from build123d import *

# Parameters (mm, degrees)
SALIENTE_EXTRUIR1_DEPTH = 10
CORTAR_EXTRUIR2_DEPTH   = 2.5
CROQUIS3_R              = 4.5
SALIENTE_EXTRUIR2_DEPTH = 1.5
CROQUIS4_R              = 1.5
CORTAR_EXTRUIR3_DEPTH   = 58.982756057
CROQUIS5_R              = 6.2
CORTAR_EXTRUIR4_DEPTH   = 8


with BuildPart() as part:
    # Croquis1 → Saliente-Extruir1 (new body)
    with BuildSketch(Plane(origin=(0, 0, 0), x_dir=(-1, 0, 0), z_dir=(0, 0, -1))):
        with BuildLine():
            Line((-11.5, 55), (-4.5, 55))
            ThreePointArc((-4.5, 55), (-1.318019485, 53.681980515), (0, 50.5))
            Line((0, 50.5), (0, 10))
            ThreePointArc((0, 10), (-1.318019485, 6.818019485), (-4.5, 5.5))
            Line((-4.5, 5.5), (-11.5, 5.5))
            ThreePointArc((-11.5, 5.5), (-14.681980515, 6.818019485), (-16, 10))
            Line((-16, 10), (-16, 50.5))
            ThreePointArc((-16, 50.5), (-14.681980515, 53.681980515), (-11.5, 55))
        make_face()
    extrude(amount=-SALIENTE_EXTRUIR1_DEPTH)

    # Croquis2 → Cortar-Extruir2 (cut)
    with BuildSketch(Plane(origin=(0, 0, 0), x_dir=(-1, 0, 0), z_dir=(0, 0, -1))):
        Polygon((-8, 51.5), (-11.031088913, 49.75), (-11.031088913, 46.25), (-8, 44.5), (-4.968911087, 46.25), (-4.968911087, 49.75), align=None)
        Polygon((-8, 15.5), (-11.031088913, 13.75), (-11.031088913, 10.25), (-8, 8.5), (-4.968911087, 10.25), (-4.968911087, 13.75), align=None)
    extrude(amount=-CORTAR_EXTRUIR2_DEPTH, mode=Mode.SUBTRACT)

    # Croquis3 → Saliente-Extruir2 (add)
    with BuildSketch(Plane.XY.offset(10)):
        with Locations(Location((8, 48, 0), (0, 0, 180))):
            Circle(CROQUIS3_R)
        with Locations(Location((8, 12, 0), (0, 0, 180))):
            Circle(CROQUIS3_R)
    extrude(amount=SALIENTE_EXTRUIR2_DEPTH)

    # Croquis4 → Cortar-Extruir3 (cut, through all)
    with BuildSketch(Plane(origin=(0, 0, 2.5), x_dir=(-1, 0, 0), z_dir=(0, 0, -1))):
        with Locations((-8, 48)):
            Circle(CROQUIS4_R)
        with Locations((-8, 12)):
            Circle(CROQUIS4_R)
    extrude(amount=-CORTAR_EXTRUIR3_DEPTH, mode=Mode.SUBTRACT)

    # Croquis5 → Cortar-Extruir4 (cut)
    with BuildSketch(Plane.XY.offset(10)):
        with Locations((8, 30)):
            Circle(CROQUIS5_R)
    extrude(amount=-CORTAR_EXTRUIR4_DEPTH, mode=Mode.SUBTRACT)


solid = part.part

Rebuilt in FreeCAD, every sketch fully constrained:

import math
import FreeCAD as App
import Part
import Sketcher
Q = App.Units.Quantity


def add_polygon(sketch, points):
    """Adds a closed chain of lines whose ends are joined by coincident constraints."""
    first, n = sketch.GeometryCount, len(points)
    for a, b in zip(points, points[1:] + points[:1]):
        sketch.addGeometry(Part.LineSegment(App.Vector(*a, 0), App.Vector(*b, 0)), False)
    for i in range(n):
        sketch.addConstraint(Sketcher.Constraint("Coincident", first + i, 2, first + (i + 1) % n, 1))

doc = App.newDocument("Part")
body = doc.addObject("PartDesign::Body", "Body")

sketch1 = body.newObject("Sketcher::SketchObject", "Sketch")
sketch1.AttachmentSupport = (doc.getObject("XY_Plane"), [""])
sketch1.MapMode = "FlatFace"
sketch1.addGeometry(Part.LineSegment(App.Vector(4.5, 55, 0), App.Vector(11.5, 55, 0)), False)
sketch1.addGeometry(Part.ArcOfCircle(Part.Circle(App.Vector(11.5, 50.5, 0), App.Vector(0, 0, 1), 4.5), math.radians(0), math.radians(90)), False)
sketch1.addGeometry(Part.LineSegment(App.Vector(16, 50.5, 0), App.Vector(16, 10, 0)), False)
sketch1.addGeometry(Part.ArcOfCircle(Part.Circle(App.Vector(11.5, 10, 0), App.Vector(0, 0, 1), 4.5), math.radians(-90), math.radians(0)), False)
sketch1.addGeometry(Part.LineSegment(App.Vector(11.5, 5.5, 0), App.Vector(4.5, 5.5, 0)), False)
sketch1.addGeometry(Part.ArcOfCircle(Part.Circle(App.Vector(4.5, 10, 0), App.Vector(0, 0, 1), 4.5), math.radians(-180), math.radians(-90)), False)
sketch1.addGeometry(Part.LineSegment(App.Vector(0, 10, 0), App.Vector(0, 50.5, 0)), False)
sketch1.addGeometry(Part.ArcOfCircle(Part.Circle(App.Vector(4.5, 50.5, 0), App.Vector(0, 0, 1), 4.5), math.radians(90), math.radians(180)), False)
sketch1.addConstraint(Sketcher.Constraint("Tangent", 0, 2, 1, 2))
sketch1.addConstraint(Sketcher.Constraint("Tangent", 1, 1, 2, 1))
sketch1.addConstraint(Sketcher.Constraint("Tangent", 2, 2, 3, 2))
sketch1.addConstraint(Sketcher.Constraint("Tangent", 3, 1, 4, 1))
sketch1.addConstraint(Sketcher.Constraint("Tangent", 4, 2, 5, 2))
sketch1.addConstraint(Sketcher.Constraint("Tangent", 5, 1, 6, 1))
sketch1.addConstraint(Sketcher.Constraint("Tangent", 6, 2, 7, 2))
sketch1.addConstraint(Sketcher.Constraint("Tangent", 7, 1, 0, 1))
sketch1.addConstraint(Sketcher.Constraint("Horizontal", 0))
sketch1.addConstraint(Sketcher.Constraint("Vertical", 2))
sketch1.addConstraint(Sketcher.Constraint("Horizontal", 4))
sketch1.addConstraint(Sketcher.Constraint("Vertical", 6))
sketch1.addConstraint(Sketcher.Constraint("Equal", 1, 3))
sketch1.addConstraint(Sketcher.Constraint("Equal", 3, 5))
sketch1.addConstraint(Sketcher.Constraint("Equal", 5, 7))
sketch1.addConstraint(Sketcher.Constraint("PointOnObject", 5, 1, -2))
sketch1.addConstraint(Sketcher.Constraint("Radius", 1, Q("4.5 mm")))
sketch1.addConstraint(Sketcher.Constraint("DistanceX", 0, 1, 0, 2, Q("7 mm")))
sketch1.addConstraint(Sketcher.Constraint("DistanceY", 2, 2, 2, 1, Q("40.5 mm")))
sketch1.addConstraint(Sketcher.Constraint("DistanceY", -1, 1, 3, 3, Q("10 mm")))
pad1 = body.newObject("PartDesign::Pad", "Pad")
pad1.Profile = sketch1
pad1.Length = 10

sketch2 = body.newObject("Sketcher::SketchObject", "Sketch001")
sketch2.AttachmentSupport = (doc.getObject("XY_Plane"), [""])
sketch2.MapMode = "FlatFace"
add_polygon(sketch2, [(8, 51.5), (11.031089, 49.75), (11.031089, 46.25), (8, 44.5), (4.968911, 46.25), (4.968911, 49.75)])
add_polygon(sketch2, [(8, 15.5), (11.031089, 13.75), (11.031089, 10.25), (8, 8.5), (4.968911, 10.25), (4.968911, 13.75)])
sketch2.addConstraint(Sketcher.Constraint("Vertical", 1))
sketch2.addConstraint(Sketcher.Constraint("Vertical", 4))
sketch2.addConstraint(Sketcher.Constraint("Vertical", 7))
sketch2.addConstraint(Sketcher.Constraint("Vertical", 10))
sketch2.addConstraint(Sketcher.Constraint("Parallel", 0, 3))
sketch2.addConstraint(Sketcher.Constraint("Parallel", 2, 5))
sketch2.addConstraint(Sketcher.Constraint("Parallel", 3, 6))
sketch2.addConstraint(Sketcher.Constraint("Parallel", 5, 8))
sketch2.addConstraint(Sketcher.Constraint("Parallel", 6, 9))
sketch2.addConstraint(Sketcher.Constraint("Parallel", 8, 11))
sketch2.addConstraint(Sketcher.Constraint("Horizontal", 1, 2, 3, 2))
sketch2.addConstraint(Sketcher.Constraint("Horizontal", 0, 2, 4, 2))
sketch2.addConstraint(Sketcher.Constraint("Horizontal", 7, 2, 9, 2))
sketch2.addConstraint(Sketcher.Constraint("Horizontal", 6, 2, 10, 2))
sketch2.addConstraint(Sketcher.Constraint("Vertical", 2, 2, 5, 2))
sketch2.addConstraint(Sketcher.Constraint("Vertical", 1, 2, 6, 2))
sketch2.addConstraint(Sketcher.Constraint("Vertical", 5, 2, 8, 2))
sketch2.addConstraint(Sketcher.Constraint("Equal", 4, 7))
sketch2.addConstraint(Sketcher.Constraint("Angle", 0, Q("-30 deg")))
sketch2.addConstraint(Sketcher.Constraint("DistanceY", 1, 2, 1, 1, Q("3.5 mm")))
sketch2.addConstraint(Sketcher.Constraint("DistanceX", -1, 1, 2, 2, Q("8 mm")))
sketch2.addConstraint(Sketcher.Constraint("DistanceY", 2, 2, 5, 2, Q("7 mm")))
sketch2.addConstraint(Sketcher.Constraint("DistanceY", 6, 2, 0, 2, Q("36 mm")))
sketch2.addConstraint(Sketcher.Constraint("DistanceY", -1, 1, 2, 2, Q("44.5 mm")))
pocket1 = body.newObject("PartDesign::Pocket", "Pocket")
pocket1.Profile = sketch2
pocket1.Length = 2.5
pocket1.Reversed = True

sketch3 = body.newObject("Sketcher::SketchObject", "Sketch002")
sketch3.AttachmentSupport = (doc.getObject("XY_Plane"), [""])
sketch3.MapMode = "FlatFace"
sketch3.AttachmentOffset = App.Placement(App.Vector(0, 0, 10), App.Rotation())
sketch3.addGeometry(Part.Circle(App.Vector(8, 48, 0), App.Vector(0, 0, 1), 4.5), False)
sketch3.addGeometry(Part.Circle(App.Vector(8, 12, 0), App.Vector(0, 0, 1), 4.5), False)
sketch3.addConstraint(Sketcher.Constraint("Equal", 0, 1))
sketch3.addConstraint(Sketcher.Constraint("Vertical", 0, 3, 1, 3))
sketch3.addConstraint(Sketcher.Constraint("Diameter", 0, Q("9 mm")))
sketch3.addConstraint(Sketcher.Constraint("DistanceX", -1, 1, 0, 3, Q("8 mm")))
sketch3.addConstraint(Sketcher.Constraint("DistanceY", -1, 1, 0, 3, Q("48 mm")))
sketch3.addConstraint(Sketcher.Constraint("DistanceY", -1, 1, 1, 3, Q("12 mm")))
pad2 = body.newObject("PartDesign::Pad", "Pad001")
pad2.Profile = sketch3
pad2.Length = 1.5

sketch4 = body.newObject("Sketcher::SketchObject", "Sketch003")
sketch4.AttachmentSupport = (doc.getObject("XY_Plane"), [""])
sketch4.MapMode = "FlatFace"
sketch4.AttachmentOffset = App.Placement(App.Vector(0, 0, 2.5), App.Rotation())
sketch4.addGeometry(Part.Circle(App.Vector(8, 48, 0), App.Vector(0, 0, 1), 1.5), False)
sketch4.addGeometry(Part.Circle(App.Vector(8, 12, 0), App.Vector(0, 0, 1), 1.5), False)
sketch4.addConstraint(Sketcher.Constraint("Equal", 0, 1))
sketch4.addConstraint(Sketcher.Constraint("Vertical", 0, 3, 1, 3))
sketch4.addConstraint(Sketcher.Constraint("Diameter", 0, Q("3 mm")))
sketch4.addConstraint(Sketcher.Constraint("DistanceX", -1, 1, 0, 3, Q("8 mm")))
sketch4.addConstraint(Sketcher.Constraint("DistanceY", -1, 1, 0, 3, Q("48 mm")))
sketch4.addConstraint(Sketcher.Constraint("DistanceY", -1, 1, 1, 3, Q("12 mm")))
pocket2 = body.newObject("PartDesign::Pocket", "Pocket001")
pocket2.Profile = sketch4
pocket2.Type = "ThroughAll"
pocket2.Reversed = True

sketch5 = body.newObject("Sketcher::SketchObject", "Sketch004")
sketch5.AttachmentSupport = (doc.getObject("XY_Plane"), [""])
sketch5.MapMode = "FlatFace"
sketch5.AttachmentOffset = App.Placement(App.Vector(0, 0, 10), App.Rotation())
sketch5.addGeometry(Part.Circle(App.Vector(8, 30, 0), App.Vector(0, 0, 1), 6.2), False)
sketch5.addConstraint(Sketcher.Constraint("Diameter", 0, Q("12.4 mm")))
sketch5.addConstraint(Sketcher.Constraint("DistanceX", -1, 1, 0, 3, Q("8 mm")))
sketch5.addConstraint(Sketcher.Constraint("DistanceY", -1, 1, 0, 3, Q("30 mm")))
pocket3 = body.newObject("PartDesign::Pocket", "Pocket002")
pocket3.Profile = sketch5
pocket3.Length = 8

doc.recompute()
